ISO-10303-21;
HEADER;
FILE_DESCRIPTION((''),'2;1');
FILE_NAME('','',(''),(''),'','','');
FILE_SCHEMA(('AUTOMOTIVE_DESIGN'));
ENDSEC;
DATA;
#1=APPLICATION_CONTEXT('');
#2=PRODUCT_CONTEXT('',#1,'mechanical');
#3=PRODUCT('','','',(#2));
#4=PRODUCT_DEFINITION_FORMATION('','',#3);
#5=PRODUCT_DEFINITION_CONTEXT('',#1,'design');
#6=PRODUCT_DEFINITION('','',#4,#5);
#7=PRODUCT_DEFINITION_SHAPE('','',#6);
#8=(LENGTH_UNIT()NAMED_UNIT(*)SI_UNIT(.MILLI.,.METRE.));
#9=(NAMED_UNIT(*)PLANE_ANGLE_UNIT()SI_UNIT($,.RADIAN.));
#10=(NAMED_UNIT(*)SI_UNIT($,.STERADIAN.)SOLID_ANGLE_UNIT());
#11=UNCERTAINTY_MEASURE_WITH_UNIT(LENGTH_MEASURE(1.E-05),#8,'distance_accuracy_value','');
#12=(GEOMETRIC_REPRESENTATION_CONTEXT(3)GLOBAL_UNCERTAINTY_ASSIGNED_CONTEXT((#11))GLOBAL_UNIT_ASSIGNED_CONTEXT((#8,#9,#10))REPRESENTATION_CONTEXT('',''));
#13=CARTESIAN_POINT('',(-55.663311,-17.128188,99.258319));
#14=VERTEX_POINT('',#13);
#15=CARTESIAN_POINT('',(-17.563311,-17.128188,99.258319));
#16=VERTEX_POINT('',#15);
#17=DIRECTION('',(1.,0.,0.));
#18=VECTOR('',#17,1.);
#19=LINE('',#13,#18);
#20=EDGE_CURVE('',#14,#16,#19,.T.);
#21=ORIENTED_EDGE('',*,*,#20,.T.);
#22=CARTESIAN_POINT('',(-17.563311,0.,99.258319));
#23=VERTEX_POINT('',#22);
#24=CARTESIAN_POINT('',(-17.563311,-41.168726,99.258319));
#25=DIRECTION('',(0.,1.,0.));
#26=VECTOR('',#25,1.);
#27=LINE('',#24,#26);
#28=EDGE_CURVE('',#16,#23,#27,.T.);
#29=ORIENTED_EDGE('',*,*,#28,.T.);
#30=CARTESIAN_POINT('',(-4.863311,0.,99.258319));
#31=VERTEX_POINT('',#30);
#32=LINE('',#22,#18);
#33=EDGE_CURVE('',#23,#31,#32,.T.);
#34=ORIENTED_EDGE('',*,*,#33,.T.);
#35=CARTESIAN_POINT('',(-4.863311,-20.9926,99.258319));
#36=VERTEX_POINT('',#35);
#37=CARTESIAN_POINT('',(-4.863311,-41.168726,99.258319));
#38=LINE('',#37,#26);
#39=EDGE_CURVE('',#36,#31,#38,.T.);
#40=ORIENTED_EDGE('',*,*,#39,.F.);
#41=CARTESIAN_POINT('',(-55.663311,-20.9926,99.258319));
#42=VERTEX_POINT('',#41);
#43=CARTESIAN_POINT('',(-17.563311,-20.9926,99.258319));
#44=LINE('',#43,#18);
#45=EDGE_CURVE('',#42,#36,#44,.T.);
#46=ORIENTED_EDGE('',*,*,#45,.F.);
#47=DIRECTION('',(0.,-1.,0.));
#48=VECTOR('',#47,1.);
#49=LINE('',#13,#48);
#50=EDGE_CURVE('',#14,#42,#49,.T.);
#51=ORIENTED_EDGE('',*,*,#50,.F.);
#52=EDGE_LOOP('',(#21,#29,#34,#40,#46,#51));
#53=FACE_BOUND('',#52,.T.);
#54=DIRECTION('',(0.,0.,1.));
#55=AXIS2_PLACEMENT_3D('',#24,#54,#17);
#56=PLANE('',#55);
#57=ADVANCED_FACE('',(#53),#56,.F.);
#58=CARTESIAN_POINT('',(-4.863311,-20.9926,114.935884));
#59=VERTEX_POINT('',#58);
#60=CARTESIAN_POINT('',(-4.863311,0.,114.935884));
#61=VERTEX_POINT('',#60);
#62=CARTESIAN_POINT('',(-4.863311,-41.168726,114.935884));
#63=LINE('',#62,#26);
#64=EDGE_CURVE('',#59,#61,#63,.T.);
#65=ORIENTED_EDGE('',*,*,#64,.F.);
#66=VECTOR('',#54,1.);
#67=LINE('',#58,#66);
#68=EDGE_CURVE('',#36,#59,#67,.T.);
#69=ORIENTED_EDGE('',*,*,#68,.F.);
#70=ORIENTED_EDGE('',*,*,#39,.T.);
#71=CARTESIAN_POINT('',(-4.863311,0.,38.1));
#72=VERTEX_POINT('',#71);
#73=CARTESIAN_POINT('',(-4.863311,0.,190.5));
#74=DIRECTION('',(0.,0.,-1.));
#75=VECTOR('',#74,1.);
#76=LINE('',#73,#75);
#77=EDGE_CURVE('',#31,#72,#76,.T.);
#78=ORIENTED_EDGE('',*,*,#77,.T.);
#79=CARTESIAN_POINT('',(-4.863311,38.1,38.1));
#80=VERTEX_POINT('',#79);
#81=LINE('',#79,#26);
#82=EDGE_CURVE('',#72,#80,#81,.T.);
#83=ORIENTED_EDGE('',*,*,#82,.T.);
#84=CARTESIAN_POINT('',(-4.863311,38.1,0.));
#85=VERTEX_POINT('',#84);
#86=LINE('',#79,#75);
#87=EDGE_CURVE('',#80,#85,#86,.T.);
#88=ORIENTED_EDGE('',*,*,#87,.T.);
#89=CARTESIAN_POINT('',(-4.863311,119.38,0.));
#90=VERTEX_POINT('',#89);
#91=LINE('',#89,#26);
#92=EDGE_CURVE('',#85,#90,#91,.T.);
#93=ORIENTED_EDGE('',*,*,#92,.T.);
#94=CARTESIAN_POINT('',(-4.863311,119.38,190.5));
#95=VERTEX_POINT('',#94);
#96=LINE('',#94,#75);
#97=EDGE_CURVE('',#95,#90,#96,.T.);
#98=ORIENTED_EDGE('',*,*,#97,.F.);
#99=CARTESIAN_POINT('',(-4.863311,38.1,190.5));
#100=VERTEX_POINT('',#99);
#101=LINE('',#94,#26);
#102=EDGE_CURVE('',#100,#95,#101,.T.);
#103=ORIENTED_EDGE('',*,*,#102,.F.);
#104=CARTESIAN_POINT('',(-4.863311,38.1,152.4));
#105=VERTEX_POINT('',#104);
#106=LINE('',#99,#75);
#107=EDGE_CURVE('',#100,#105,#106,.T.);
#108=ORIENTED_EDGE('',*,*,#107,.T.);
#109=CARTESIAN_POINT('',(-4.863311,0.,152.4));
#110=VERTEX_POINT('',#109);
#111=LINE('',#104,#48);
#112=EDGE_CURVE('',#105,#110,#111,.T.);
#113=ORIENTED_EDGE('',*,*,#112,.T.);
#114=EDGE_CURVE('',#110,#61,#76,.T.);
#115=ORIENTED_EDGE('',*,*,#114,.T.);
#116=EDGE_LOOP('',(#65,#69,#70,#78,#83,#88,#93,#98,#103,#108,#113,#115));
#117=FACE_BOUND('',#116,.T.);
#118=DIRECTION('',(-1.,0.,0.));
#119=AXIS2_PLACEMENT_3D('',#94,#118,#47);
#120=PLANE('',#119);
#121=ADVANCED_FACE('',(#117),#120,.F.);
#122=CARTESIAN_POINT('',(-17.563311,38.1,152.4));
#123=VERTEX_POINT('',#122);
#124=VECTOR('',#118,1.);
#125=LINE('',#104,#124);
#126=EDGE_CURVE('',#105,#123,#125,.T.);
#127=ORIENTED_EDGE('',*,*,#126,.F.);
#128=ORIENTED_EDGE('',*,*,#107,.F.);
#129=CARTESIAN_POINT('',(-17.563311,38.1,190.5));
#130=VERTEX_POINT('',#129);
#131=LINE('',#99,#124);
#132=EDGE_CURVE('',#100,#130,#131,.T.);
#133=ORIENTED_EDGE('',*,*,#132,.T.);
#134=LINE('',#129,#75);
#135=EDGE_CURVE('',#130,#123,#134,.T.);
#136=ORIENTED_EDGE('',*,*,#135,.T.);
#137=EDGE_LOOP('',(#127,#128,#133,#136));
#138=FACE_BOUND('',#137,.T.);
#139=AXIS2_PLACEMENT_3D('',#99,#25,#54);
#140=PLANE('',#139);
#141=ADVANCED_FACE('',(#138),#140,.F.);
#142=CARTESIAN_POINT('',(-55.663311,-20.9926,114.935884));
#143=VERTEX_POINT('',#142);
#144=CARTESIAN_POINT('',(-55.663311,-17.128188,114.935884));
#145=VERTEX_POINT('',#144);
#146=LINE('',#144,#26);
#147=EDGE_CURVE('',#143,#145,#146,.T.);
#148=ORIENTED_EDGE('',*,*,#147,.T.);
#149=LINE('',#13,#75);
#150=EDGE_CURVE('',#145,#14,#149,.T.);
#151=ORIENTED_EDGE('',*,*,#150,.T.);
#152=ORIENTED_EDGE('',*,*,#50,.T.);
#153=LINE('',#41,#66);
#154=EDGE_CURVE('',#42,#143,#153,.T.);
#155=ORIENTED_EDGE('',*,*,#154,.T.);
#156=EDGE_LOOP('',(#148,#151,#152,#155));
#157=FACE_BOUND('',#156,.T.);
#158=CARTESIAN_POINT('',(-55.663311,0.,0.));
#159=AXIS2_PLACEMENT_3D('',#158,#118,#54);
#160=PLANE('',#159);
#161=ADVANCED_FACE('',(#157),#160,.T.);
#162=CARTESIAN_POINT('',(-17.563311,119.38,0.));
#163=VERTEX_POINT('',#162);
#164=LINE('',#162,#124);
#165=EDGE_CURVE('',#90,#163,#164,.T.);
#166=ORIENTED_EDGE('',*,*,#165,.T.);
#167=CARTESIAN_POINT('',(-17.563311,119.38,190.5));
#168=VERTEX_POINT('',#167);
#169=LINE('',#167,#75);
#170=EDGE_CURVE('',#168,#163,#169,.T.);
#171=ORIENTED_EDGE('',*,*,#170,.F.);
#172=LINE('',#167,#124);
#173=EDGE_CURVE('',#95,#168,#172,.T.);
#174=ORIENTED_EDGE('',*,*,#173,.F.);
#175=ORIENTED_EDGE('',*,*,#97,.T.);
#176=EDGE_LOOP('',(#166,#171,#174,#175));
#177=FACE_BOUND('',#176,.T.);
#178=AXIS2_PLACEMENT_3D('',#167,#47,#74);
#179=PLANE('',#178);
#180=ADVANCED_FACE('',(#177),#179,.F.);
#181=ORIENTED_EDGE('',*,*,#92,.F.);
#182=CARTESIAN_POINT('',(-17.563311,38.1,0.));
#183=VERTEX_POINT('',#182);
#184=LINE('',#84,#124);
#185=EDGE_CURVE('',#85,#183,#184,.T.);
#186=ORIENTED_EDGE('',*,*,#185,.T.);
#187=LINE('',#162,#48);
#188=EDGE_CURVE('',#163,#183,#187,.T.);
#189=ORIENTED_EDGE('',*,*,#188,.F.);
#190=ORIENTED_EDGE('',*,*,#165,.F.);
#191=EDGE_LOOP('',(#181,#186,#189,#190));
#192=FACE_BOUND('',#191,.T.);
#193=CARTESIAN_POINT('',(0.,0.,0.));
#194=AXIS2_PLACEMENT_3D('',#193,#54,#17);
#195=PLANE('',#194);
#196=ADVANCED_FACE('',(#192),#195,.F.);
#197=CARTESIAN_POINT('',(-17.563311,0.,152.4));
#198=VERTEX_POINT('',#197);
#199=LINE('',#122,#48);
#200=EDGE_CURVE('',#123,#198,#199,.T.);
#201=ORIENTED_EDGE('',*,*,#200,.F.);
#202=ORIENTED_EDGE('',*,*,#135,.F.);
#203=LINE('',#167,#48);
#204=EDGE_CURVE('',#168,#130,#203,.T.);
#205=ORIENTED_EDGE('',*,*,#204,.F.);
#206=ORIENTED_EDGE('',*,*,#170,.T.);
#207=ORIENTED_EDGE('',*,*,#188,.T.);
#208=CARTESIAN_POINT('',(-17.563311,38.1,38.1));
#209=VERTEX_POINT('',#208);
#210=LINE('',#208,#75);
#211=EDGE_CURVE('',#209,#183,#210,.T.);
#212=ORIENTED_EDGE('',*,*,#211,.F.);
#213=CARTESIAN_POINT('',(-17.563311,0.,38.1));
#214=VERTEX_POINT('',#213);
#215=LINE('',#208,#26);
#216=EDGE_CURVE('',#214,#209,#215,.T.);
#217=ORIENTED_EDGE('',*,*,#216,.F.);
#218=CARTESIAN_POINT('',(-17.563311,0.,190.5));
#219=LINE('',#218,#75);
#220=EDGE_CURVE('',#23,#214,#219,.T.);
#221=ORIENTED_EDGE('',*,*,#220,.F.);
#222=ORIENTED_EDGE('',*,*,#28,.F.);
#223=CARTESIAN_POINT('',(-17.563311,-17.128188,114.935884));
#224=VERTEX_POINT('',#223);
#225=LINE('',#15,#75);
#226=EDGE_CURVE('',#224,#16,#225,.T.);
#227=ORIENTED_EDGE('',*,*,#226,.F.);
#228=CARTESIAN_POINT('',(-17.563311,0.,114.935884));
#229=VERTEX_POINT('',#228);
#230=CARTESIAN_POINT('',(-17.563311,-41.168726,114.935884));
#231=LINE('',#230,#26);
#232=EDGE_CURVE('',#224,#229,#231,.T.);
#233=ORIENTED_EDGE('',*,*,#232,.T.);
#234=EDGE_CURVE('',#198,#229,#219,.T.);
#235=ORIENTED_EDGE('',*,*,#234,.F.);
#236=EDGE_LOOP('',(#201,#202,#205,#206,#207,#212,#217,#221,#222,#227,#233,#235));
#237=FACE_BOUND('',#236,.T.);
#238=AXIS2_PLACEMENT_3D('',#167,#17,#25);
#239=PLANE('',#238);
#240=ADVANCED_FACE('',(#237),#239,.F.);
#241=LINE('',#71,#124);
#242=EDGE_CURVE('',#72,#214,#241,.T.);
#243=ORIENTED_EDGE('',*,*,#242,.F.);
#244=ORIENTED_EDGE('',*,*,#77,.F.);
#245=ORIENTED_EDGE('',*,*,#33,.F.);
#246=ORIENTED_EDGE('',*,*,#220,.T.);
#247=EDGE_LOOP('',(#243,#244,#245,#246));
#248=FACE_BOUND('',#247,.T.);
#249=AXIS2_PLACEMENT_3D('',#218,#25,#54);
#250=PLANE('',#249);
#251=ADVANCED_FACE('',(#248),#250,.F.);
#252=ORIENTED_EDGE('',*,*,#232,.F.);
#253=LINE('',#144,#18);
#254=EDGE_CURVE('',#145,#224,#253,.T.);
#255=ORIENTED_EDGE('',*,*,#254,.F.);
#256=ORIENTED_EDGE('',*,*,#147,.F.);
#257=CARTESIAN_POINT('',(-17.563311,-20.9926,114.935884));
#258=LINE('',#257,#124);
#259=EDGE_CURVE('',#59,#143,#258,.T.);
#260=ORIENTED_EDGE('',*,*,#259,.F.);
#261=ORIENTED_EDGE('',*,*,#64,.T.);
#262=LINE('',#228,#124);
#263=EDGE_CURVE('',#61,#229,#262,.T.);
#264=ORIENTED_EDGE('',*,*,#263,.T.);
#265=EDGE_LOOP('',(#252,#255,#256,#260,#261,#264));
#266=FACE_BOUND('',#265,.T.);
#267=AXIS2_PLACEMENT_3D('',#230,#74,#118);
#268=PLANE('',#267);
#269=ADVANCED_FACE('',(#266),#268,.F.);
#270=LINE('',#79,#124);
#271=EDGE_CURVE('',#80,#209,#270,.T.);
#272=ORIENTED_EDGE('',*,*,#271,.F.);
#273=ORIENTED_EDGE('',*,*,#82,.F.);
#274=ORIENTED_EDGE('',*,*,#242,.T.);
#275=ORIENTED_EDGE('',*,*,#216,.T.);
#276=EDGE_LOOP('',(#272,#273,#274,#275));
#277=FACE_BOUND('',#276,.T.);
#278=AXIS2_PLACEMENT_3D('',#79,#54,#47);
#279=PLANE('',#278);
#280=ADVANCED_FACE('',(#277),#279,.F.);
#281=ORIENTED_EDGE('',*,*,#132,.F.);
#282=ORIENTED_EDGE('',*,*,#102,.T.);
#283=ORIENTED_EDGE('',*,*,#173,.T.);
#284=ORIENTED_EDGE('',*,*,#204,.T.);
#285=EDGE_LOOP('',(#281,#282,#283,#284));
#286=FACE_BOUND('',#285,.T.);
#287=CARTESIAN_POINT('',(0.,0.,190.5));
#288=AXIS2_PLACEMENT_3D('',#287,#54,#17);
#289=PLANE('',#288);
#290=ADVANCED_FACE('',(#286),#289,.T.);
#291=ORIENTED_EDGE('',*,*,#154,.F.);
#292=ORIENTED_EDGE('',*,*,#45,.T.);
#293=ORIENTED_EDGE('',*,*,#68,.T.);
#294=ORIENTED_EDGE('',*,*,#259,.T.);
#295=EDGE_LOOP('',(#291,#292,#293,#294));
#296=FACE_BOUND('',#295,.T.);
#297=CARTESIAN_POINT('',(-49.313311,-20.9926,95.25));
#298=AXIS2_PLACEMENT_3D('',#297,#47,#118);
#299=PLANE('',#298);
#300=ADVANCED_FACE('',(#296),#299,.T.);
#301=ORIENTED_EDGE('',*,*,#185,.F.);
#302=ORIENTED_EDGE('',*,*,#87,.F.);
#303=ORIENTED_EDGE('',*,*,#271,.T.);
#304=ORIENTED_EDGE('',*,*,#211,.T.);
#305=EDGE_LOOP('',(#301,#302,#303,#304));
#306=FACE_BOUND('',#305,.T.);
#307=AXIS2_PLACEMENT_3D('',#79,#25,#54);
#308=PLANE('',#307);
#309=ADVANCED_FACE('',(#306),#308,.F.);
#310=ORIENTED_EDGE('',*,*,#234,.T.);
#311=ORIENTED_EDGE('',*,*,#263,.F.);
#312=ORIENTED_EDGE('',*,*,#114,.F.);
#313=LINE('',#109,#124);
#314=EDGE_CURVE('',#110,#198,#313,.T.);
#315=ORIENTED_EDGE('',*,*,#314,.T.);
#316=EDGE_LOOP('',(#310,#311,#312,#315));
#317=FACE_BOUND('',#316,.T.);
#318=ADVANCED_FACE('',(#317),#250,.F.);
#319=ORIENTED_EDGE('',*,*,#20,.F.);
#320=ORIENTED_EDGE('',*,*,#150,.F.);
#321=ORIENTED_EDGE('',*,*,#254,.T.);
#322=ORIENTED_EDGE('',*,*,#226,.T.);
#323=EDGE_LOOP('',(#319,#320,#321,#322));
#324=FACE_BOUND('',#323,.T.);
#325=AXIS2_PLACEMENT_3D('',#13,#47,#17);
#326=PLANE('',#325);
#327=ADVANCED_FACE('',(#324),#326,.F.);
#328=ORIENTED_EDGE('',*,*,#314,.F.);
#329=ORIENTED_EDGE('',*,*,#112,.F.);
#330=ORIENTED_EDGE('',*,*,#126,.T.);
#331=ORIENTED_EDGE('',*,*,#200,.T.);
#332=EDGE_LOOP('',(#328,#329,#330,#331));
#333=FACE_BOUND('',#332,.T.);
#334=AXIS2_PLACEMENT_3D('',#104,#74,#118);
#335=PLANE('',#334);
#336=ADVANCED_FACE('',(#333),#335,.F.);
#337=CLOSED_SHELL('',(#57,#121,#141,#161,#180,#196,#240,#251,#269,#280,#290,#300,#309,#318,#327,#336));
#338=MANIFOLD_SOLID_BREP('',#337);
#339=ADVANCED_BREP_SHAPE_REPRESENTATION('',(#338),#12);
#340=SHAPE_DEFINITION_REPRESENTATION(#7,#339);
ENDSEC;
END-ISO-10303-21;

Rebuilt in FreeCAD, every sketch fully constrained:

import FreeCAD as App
import Part
import Sketcher

V = App.Vector
Q = App.Units.Quantity

doc = App.newDocument("Part")
body = doc.addObject("PartDesign::Body", "Body")

# Sketch on XY plane
sketch1 = body.newObject("Sketcher::SketchObject", "Sketch")
sketch1.AttachmentSupport = (doc.getObject("XY_Plane"), [""])
sketch1.MapMode = "FlatFace"
sketch1.addGeometry(Part.LineSegment(V(-18, 119, 0), V(-18, 0, 0)), False)
sketch1.addGeometry(Part.LineSegment(V(-18, 0, 0), V(-5, 0, 0)), False)
sketch1.addGeometry(Part.LineSegment(V(-5, 0, 0), V(-5, 119, 0)), False)
sketch1.addGeometry(Part.LineSegment(V(-5, 119, 0), V(-18, 119, 0)), False)
sketch1.addConstraint(Sketcher.Constraint("Coincident", 0, 2, 1, 1))
sketch1.addConstraint(Sketcher.Constraint("Coincident", 1, 2, 2, 1))
sketch1.addConstraint(Sketcher.Constraint("Coincident", 2, 2, 3, 1))
sketch1.addConstraint(Sketcher.Constraint("Coincident", 3, 2, 0, 1))
sketch1.addConstraint(Sketcher.Constraint("Vertical", 0))
sketch1.addConstraint(Sketcher.Constraint("Horizontal", 1))
sketch1.addConstraint(Sketcher.Constraint("Vertical", 2))
sketch1.addConstraint(Sketcher.Constraint("Horizontal", 3))
sketch1.addConstraint(Sketcher.Constraint("PointOnObject", 0, 2, -1))
sketch1.addConstraint(Sketcher.Constraint("DistanceX", 1, 1, 1, 2, Q("0.5 in")))
sketch1.addConstraint(Sketcher.Constraint("DistanceY", 0, 2, 0, 1, Q("4.7 in")))
sketch1.addConstraint(Sketcher.Constraint("DistanceX", 0, 2, -1, 1, 17.563311))
pad1 = body.newObject("PartDesign::Pad", "Pad")
pad1.Profile = sketch1
pad1.Length = Q("7.5 in")

# Sketch on YZ plane
sketch2 = body.newObject("Sketcher::SketchObject", "Sketch001")
sketch2.AttachmentSupport = (doc.getObject("YZ_Plane"), [""])
sketch2.MapMode = "FlatFace"
sketch2.AttachmentOffset = App.Placement(V(0, 0, -17.563311), App.Rotation())
sketch2.addGeometry(Part.LineSegment(V(38, 152, 0), V(0, 152, 0)), False)
sketch2.addGeometry(Part.LineSegment(V(0, 152, 0), V(0, 190, 0)), False)
sketch2.addGeometry(Part.LineSegment(V(0, 190, 0), V(38, 190, 0)), False)
sketch2.addGeometry(Part.LineSegment(V(38, 190, 0), V(38, 152, 0)), False)
sketch2.addGeometry(Part.LineSegment(V(38, 0, 0), V(0, 0, 0)), False)
sketch2.addGeometry(Part.LineSegment(V(0, 0, 0), V(0, 38, 0)), False)
sketch2.addGeometry(Part.LineSegment(V(0, 38, 0), V(38, 38, 0)), False)
sketch2.addGeometry(Part.LineSegment(V(38, 38, 0), V(38, 0, 0)), False)
sketch2.addConstraint(Sketcher.Constraint("Coincident", 0, 2, 1, 1))
sketch2.addConstraint(Sketcher.Constraint("Coincident", 1, 2, 2, 1))
sketch2.addConstraint(Sketcher.Constraint("Coincident", 2, 2, 3, 1))
sketch2.addConstraint(Sketcher.Constraint("Coincident", 3, 2, 0, 1))
sketch2.addConstraint(Sketcher.Constraint("Coincident", 4, 2, 5, 1))
sketch2.addConstraint(Sketcher.Constraint("Coincident", 5, 2, 6, 1))
sketch2.addConstraint(Sketcher.Constraint("Coincident", 6, 2, 7, 1))
sketch2.addConstraint(Sketcher.Constraint("Coincident", 7, 2, 4, 1))
sketch2.addConstraint(Sketcher.Constraint("Horizontal", 0))
sketch2.addConstraint(Sketcher.Constraint("Vertical", 1))
sketch2.addConstraint(Sketcher.Constraint("Horizontal", 2))
sketch2.addConstraint(Sketcher.Constraint("Vertical", 3))
sketch2.addConstraint(Sketcher.Constraint("Horizontal", 4))
sketch2.addConstraint(Sketcher.Constraint("Vertical", 5))
sketch2.addConstraint(Sketcher.Constraint("Horizontal", 6))
sketch2.addConstraint(Sketcher.Constraint("Vertical", 7))
sketch2.addConstraint(Sketcher.Constraint("Coincident", 4, 2, -1, 1))
sketch2.addConstraint(Sketcher.Constraint("PointOnObject", 0, 2, -2))
sketch2.addConstraint(Sketcher.Constraint("Vertical", 3, 2, 6, 2))
sketch2.addConstraint(Sketcher.Constraint("Equal", 6, 1))
sketch2.addConstraint(Sketcher.Constraint("Equal", 3, 5))
sketch2.addConstraint(Sketcher.Constraint("DistanceX", 0, 2, 0, 1, Q("1.5 in")))
sketch2.addConstraint(Sketcher.Constraint("DistanceY", -1, 1, 0, 2, Q("6 in")))
pocket1 = body.newObject("PartDesign::Pocket", "Pocket")
pocket1.Profile = sketch2
pocket1.Type = "ThroughAll"
pocket1.Reversed = True

# Sketch on XZ plane
sketch3 = body.newObject("Sketcher::SketchObject", "Sketch002")
sketch3.AttachmentSupport = (doc.getObject("XZ_Plane"), [""])
sketch3.MapMode = "FlatFace"
sketch3.addGeometry(Part.LineSegment(V(-18, 115, 0), V(-18, 99, 0)), False)
sketch3.addGeometry(Part.LineSegment(V(-18, 99, 0), V(-5, 99, 0)), False)
sketch3.addGeometry(Part.LineSegment(V(-5, 99, 0), V(-5, 115, 0)), False)
sketch3.addGeometry(Part.LineSegment(V(-5, 115, 0), V(-18, 115, 0)), False)
sketch3.addConstraint(Sketcher.Constraint("Coincident", 0, 2, 1, 1))
sketch3.addConstraint(Sketcher.Constraint("Coincident", 1, 2, 2, 1))
sketch3.addConstraint(Sketcher.Constraint("Coincident", 2, 2, 3, 1))
sketch3.addConstraint(Sketcher.Constraint("Coincident", 3, 2, 0, 1))
sketch3.addConstraint(Sketcher.Constraint("Vertical", 0))
sketch3.addConstraint(Sketcher.Constraint("Horizontal", 1))
sketch3.addConstraint(Sketcher.Constraint("Vertical", 2))
sketch3.addConstraint(Sketcher.Constraint("Horizontal", 3))
sketch3.addConstraint(Sketcher.Constraint("DistanceX", 1, 1, 1, 2, Q("0.5 in")))
sketch3.addConstraint(Sketcher.Constraint("DistanceY", 0, 2, 0, 1, 15.677565))
sketch3.addConstraint(Sketcher.Constraint("DistanceX", 0, 2, -1, 1, 17.563311))
sketch3.addConstraint(Sketcher.Constraint("DistanceY", -1, 1, 0, 2, 99.258319))
pad2 = body.newObject("PartDesign::Pad", "Pad001")
pad2.Profile = sketch3
pad2.Length = 20.9926

# Sketch on YZ plane
sketch4 = body.newObject("Sketcher::SketchObject", "Sketch003")
sketch4.AttachmentSupport = (doc.getObject("YZ_Plane"), [""])
sketch4.MapMode = "FlatFace"
sketch4.AttachmentOffset = App.Placement(V(0, 0, -17.563311), App.Rotation())
sketch4.addGeometry(Part.LineSegment(V(-17.1, 99.3, 0), V(-21, 99.3, 0)), False)
sketch4.addGeometry(Part.LineSegment(V(-21, 99.3, 0), V(-21, 114.9, 0)), False)
sketch4.addGeometry(Part.LineSegment(V(-21, 114.9, 0), V(-17.1, 114.9, 0)), False)
sketch4.addGeometry(Part.LineSegment(V(-17.1, 114.9, 0), V(-17.1, 99.3, 0)), False)
sketch4.addConstraint(Sketcher.Constraint("Coincident", 0, 2, 1, 1))
sketch4.addConstraint(Sketcher.Constraint("Coincident", 1, 2, 2, 1))
sketch4.addConstraint(Sketcher.Constraint("Coincident", 2, 2, 3, 1))
sketch4.addConstraint(Sketcher.Constraint("Coincident", 3, 2, 0, 1))
sketch4.addConstraint(Sketcher.Constraint("Horizontal", 0))
sketch4.addConstraint(Sketcher.Constraint("Vertical", 1))
sketch4.addConstraint(Sketcher.Constraint("Horizontal", 2))
sketch4.addConstraint(Sketcher.Constraint("Vertical", 3))
sketch4.addConstraint(Sketcher.Constraint("DistanceX", 0, 2, 0, 1, 3.864412))
sketch4.addConstraint(Sketcher.Constraint("DistanceX", 0, 2, -1, 1, 20.9926))
sketch4.addConstraint(Sketcher.Constraint("DistanceY", 1, 1, 1, 2, 15.677565))
sketch4.addConstraint(Sketcher.Constraint("DistanceY", -1, 1, 0, 2, 99.258319))
pad3 = body.newObject("PartDesign::Pad", "Pad002")
pad3.Profile = sketch4
pad3.Length = Q("1.5 in")
pad3.Reversed = True

doc.recompute()
